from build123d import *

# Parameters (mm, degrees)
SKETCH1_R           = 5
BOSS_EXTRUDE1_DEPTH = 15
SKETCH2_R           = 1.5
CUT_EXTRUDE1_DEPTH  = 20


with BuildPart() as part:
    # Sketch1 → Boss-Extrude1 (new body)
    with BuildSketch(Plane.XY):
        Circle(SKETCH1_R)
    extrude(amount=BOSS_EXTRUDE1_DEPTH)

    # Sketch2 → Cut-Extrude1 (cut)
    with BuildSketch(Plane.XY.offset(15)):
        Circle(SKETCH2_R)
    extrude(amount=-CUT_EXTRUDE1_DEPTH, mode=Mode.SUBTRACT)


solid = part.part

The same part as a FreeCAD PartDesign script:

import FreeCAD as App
import Part
import Sketcher

V = App.Vector

doc = App.newDocument("Part")
body = doc.addObject("PartDesign::Body", "Body")

sketch1 = body.newObject("Sketcher::SketchObject", "Sketch")
sketch1.AttachmentSupport = (doc.getObject("XY_Plane"), [""])
sketch1.MapMode = "FlatFace"
sketch1.addGeometry(Part.Circle(V(0, 0, 0), V(0, 0, 1), 5), False)
sketch1.addConstraint([
    Sketcher.Constraint("Coincident", 0, 3, -1, 1),
    Sketcher.Constraint("Diameter", 0, 10.0),
])
pad1 = body.newObject("PartDesign::Pad", "Pad")
pad1.Profile = sketch1
pad1.Length = 15

sketch2 = body.newObject("Sketcher::SketchObject", "Sketch001")
sketch2.AttachmentSupport = (doc.getObject("XY_Plane"), [""])
sketch2.MapMode = "FlatFace"
sketch2.AttachmentOffset = App.Placement(V(0, 0, 15), App.Rotation())
sketch2.addGeometry(Part.Circle(V(0, 0, 0), V(0, 0, 1), 1.5), False)
sketch2.addConstraint([
    Sketcher.Constraint("Coincident", 0, 3, -1, 1),
    Sketcher.Constraint("Diameter", 0, 3.0),
])
pocket1 = body.newObject("PartDesign::Pocket", "Pocket")
pocket1.Profile = sketch2
pocket1.Length = 20

doc.recompute()
